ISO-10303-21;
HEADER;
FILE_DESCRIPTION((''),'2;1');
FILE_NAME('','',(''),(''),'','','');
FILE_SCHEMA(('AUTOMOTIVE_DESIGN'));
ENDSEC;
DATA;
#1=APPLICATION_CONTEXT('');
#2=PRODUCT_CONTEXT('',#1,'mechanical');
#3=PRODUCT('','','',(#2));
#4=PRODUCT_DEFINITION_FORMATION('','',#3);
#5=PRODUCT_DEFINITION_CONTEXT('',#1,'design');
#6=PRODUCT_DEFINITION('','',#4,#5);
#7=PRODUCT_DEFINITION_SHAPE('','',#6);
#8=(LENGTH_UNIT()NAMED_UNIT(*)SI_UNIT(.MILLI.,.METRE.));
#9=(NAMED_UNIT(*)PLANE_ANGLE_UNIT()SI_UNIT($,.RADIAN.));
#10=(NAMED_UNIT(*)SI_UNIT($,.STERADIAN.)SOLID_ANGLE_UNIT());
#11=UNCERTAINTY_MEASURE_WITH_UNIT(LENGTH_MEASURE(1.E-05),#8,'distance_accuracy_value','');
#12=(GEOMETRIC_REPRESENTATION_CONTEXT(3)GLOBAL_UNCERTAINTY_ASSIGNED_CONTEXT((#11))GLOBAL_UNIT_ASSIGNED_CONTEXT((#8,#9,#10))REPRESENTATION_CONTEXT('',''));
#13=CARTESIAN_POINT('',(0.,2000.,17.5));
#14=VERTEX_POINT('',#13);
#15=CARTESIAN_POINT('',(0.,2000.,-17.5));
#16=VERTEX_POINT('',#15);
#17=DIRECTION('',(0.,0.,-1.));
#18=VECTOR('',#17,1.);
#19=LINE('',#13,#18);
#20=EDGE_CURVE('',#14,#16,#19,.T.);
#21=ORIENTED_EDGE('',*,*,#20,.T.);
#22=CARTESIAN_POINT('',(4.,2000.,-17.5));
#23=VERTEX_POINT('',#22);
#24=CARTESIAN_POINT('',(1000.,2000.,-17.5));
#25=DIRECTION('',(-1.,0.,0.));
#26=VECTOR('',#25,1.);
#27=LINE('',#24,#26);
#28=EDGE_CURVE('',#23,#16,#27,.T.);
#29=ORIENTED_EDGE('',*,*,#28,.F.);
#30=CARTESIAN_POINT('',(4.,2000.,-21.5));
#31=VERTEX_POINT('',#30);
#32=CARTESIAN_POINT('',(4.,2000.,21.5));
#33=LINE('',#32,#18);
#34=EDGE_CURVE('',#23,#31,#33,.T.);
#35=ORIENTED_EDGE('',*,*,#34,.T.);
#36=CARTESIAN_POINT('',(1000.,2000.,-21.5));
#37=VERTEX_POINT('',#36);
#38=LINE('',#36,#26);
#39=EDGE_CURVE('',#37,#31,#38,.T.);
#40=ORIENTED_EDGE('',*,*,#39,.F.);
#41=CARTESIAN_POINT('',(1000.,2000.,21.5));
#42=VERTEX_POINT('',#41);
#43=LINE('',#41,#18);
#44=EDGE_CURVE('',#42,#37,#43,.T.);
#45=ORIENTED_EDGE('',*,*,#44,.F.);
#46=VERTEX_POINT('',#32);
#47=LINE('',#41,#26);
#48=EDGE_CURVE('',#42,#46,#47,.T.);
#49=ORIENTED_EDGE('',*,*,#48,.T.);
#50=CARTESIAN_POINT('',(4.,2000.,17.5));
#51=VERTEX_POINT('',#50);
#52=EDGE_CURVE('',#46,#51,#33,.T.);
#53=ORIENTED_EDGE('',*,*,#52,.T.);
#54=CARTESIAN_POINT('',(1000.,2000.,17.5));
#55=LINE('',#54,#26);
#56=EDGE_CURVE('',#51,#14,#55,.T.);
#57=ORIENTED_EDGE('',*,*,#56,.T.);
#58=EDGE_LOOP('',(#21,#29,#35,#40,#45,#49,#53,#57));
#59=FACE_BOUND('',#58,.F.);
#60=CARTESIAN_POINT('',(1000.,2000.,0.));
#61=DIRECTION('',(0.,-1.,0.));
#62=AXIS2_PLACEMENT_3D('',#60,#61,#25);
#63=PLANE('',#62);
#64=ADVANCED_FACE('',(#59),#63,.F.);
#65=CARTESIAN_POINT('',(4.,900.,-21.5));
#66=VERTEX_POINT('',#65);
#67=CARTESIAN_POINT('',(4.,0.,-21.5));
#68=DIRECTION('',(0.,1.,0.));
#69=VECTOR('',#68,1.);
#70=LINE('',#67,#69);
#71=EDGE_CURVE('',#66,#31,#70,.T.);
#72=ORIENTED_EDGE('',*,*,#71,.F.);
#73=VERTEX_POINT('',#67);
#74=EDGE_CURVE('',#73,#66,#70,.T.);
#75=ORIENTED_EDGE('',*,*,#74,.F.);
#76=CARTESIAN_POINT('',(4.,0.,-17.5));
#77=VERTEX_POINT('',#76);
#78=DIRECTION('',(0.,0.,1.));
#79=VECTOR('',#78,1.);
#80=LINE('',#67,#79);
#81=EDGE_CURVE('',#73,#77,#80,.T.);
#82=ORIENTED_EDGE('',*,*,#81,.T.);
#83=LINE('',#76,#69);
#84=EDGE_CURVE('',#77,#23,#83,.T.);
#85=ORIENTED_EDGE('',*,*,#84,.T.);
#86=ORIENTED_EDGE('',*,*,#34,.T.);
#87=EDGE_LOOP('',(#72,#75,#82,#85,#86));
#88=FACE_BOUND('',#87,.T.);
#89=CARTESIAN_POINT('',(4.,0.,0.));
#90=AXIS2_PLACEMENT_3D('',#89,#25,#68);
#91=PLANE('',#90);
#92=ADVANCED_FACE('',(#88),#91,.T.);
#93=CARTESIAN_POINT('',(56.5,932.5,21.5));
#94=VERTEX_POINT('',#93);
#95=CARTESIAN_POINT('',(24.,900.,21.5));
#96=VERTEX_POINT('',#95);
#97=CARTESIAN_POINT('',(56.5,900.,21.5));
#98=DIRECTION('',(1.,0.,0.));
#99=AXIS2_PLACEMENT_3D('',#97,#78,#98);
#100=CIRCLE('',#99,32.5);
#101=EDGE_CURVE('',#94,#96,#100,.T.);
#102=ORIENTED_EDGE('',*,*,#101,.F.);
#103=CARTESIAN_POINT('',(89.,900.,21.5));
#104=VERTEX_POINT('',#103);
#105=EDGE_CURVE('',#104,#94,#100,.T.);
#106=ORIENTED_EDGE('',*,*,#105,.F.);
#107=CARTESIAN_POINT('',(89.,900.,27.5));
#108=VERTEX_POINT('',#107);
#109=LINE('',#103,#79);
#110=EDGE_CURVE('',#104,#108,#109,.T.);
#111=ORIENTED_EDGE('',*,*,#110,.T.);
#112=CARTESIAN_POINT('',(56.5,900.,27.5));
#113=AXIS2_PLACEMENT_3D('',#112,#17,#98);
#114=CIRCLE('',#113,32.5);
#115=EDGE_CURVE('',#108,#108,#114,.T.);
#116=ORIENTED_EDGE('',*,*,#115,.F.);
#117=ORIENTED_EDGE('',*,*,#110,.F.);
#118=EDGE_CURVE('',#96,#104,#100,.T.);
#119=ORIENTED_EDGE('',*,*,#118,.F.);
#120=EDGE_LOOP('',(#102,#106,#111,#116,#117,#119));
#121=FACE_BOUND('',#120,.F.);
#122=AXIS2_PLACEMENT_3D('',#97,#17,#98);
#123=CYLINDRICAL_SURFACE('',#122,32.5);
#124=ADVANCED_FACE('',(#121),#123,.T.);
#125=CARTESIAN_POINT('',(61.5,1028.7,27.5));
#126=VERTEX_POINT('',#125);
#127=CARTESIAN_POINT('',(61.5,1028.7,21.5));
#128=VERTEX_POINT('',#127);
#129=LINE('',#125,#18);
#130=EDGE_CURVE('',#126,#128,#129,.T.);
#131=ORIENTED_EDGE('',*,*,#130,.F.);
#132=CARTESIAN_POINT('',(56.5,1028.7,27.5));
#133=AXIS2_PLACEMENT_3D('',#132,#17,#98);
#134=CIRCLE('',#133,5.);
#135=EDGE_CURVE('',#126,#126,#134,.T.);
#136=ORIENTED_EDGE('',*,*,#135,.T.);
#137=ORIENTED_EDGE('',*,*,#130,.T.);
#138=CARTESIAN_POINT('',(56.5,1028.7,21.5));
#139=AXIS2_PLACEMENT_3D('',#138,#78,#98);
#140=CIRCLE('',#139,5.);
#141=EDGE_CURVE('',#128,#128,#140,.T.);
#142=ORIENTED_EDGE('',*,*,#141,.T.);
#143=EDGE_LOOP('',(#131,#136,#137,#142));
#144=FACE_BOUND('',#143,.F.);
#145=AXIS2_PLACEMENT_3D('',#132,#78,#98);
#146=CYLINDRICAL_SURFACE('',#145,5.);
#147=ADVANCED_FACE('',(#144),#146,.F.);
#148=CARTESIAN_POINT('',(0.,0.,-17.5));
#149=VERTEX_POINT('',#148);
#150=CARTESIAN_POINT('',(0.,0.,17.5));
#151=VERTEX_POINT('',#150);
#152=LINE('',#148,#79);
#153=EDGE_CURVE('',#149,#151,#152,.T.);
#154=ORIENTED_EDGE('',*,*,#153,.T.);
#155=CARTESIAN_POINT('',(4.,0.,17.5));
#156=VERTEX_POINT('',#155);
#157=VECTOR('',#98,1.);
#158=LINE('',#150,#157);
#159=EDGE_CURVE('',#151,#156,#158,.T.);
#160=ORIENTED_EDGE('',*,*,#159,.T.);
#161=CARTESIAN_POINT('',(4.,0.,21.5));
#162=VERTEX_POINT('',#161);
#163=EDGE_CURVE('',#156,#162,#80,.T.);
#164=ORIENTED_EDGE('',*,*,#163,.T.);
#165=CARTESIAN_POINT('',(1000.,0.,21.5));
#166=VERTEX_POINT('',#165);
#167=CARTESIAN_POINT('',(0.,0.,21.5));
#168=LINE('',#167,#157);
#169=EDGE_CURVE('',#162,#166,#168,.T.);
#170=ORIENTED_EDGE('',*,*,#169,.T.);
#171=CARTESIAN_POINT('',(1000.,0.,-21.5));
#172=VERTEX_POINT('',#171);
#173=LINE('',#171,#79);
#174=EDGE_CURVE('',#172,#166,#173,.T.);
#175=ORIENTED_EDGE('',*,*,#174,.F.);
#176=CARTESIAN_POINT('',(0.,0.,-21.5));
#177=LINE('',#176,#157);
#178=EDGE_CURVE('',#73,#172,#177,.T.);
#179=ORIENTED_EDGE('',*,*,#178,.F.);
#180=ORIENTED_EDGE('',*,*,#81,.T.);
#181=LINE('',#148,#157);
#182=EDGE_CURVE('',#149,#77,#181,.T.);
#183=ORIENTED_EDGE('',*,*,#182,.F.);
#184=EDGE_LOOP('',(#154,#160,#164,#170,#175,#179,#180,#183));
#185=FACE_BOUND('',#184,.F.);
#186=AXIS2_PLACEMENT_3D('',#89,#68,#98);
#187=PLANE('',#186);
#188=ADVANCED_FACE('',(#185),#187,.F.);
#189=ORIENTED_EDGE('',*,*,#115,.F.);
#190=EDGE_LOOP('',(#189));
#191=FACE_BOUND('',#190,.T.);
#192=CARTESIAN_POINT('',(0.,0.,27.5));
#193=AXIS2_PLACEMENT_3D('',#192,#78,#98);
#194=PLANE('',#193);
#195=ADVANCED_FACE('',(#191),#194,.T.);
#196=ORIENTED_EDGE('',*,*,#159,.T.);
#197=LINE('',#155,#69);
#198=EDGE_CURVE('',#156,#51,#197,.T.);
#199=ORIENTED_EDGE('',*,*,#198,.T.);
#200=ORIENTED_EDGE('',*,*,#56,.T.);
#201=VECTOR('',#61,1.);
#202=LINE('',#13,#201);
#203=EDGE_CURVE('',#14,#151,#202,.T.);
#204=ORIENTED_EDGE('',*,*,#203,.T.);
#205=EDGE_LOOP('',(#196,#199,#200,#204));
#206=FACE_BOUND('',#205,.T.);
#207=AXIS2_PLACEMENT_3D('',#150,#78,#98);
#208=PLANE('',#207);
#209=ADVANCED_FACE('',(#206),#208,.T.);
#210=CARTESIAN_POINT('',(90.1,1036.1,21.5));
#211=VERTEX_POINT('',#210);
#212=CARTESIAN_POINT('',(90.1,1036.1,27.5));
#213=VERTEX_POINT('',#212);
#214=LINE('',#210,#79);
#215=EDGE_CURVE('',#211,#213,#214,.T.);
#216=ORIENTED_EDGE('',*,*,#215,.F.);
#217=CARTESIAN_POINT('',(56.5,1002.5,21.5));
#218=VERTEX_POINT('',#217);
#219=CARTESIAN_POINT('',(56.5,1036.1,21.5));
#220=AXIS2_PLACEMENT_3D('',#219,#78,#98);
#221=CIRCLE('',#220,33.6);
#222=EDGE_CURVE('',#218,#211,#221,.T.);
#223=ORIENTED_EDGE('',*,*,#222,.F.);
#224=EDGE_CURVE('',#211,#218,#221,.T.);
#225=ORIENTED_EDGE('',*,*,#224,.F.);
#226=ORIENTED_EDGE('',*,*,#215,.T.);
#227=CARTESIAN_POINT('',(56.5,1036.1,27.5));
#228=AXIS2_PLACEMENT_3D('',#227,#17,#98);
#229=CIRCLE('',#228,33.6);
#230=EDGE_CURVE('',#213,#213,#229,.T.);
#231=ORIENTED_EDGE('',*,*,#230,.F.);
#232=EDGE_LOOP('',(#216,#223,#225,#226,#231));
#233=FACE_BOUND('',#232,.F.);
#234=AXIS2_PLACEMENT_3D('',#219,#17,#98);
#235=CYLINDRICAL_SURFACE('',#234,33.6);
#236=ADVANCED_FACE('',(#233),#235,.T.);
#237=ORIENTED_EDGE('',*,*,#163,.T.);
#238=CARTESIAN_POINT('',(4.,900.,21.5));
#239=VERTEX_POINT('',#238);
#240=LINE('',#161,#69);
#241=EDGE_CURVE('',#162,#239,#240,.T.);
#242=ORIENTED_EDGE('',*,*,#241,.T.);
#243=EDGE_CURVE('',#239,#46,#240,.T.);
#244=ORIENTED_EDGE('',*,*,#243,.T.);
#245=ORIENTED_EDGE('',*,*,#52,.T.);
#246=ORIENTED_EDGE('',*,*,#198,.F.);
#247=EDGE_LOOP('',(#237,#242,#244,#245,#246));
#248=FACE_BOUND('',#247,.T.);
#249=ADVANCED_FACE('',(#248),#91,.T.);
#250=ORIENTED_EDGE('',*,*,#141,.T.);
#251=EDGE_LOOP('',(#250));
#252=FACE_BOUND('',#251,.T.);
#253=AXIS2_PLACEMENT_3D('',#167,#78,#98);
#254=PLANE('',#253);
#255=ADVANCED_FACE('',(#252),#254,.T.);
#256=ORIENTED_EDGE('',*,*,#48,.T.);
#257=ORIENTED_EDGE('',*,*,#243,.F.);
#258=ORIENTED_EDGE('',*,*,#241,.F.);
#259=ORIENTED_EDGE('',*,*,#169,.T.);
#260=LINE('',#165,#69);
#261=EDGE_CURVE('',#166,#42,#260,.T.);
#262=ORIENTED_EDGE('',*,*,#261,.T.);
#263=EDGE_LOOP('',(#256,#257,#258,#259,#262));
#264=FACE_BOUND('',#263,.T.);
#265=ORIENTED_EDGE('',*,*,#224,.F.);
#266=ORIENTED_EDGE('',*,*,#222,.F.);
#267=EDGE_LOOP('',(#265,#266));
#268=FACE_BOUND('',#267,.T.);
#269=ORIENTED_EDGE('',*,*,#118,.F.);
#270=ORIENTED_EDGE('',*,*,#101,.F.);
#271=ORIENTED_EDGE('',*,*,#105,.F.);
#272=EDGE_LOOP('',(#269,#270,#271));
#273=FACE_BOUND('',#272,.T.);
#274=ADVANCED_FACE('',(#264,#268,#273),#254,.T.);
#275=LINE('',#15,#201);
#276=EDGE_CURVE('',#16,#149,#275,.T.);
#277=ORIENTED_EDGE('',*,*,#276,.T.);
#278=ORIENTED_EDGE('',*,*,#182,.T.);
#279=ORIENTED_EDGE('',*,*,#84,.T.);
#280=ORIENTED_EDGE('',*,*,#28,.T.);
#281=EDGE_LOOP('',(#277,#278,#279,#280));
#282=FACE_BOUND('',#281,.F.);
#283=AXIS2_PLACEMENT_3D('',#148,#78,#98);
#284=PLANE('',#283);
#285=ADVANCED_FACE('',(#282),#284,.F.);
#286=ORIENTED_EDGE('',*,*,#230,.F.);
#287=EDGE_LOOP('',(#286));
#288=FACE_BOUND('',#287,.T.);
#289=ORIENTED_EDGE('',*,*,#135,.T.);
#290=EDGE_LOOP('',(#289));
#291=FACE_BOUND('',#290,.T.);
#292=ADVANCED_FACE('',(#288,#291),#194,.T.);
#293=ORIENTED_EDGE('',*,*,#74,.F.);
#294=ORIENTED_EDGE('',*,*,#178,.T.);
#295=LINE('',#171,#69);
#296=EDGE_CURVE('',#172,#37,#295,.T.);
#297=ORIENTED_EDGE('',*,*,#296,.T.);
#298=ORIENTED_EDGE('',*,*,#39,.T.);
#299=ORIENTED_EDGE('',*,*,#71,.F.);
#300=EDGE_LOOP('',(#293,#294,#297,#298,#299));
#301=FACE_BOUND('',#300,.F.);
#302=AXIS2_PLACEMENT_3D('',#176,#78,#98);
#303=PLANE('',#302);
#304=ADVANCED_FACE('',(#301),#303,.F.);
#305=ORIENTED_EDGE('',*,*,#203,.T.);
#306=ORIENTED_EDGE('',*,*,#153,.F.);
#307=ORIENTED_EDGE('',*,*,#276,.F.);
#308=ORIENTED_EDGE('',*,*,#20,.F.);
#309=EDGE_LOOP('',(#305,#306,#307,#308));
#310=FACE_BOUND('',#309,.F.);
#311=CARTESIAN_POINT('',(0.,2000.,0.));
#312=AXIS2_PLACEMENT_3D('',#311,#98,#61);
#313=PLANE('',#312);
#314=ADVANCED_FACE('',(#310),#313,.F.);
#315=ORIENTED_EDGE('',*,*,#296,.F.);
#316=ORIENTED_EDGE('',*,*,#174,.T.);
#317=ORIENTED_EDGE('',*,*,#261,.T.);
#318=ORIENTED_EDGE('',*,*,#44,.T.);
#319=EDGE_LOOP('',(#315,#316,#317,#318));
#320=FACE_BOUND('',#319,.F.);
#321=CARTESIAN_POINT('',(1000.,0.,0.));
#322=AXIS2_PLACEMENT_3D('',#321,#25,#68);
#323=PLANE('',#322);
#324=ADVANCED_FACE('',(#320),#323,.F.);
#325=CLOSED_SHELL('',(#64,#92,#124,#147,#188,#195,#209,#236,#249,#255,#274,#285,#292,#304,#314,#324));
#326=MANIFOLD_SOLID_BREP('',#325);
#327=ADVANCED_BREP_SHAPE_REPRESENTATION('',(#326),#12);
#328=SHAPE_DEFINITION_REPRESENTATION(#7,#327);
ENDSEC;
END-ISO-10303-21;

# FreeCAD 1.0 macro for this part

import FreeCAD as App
import Part
import Sketcher

doc = App.newDocument("Part")
params = doc.addObject("Spreadsheet::Sheet", "Params")
for row, (alias, value) in enumerate([
    ("sketch1_height", "900 mm"),
    ("sketch1_height2", "2000 mm"),
    ("pad1_length", "43 mm"),
    ("sketch2_width", "4 mm"),
    ("sketch2_height", "2000 mm"),
    ("pad2_length", "35 mm"),
    ("sketch3_diameter", "65 mm"),
    ("sketch3_diameter2", "67.2 mm"),
    ("pad3_length", "6 mm"),
    ("sketch4_diameter", "10 mm"),
    ("pocket1_length", "6 mm"),
], start=1):
    params.set(f"A{row}", alias)
    params.set(f"B{row}", "=" + value)
    params.setAlias(f"B{row}", alias)

body = doc.addObject("PartDesign::Body", "Body")

# Sketch on XY plane
sketch1 = body.newObject("Sketcher::SketchObject", "Sketch")
sketch1.AttachmentSupport = (doc.getObject("XY_Plane"), [""])
sketch1.MapMode = "FlatFace"
sketch1.addGeometry([
    Part.LineSegment(App.Vector(4, 900, 0), App.Vector(4, 0, 0)),  # 0
    Part.LineSegment(App.Vector(4, 0, 0), App.Vector(1000, 0, 0)),  # 1
    Part.LineSegment(App.Vector(1000, 0, 0), App.Vector(1000, 2000, 0)),  # 2
    Part.LineSegment(App.Vector(1000, 2000, 0), App.Vector(4, 2000, 0)),  # 3
    Part.LineSegment(App.Vector(4, 2000, 0), App.Vector(4, 900, 0)),  # 4
], False)
sketch1.addConstraint([
    Sketcher.Constraint("Coincident", 0, 2, 1, 1),
    Sketcher.Constraint("Coincident", 1, 2, 2, 1),
    Sketcher.Constraint("Coincident", 2, 2, 3, 1),
    Sketcher.Constraint("Coincident", 3, 2, 4, 1),
    Sketcher.Constraint("Coincident", 4, 2, 0, 1),
    Sketcher.Constraint("Vertical", 0),
    Sketcher.Constraint("Horizontal", 1),
    Sketcher.Constraint("Vertical", 2),
    Sketcher.Constraint("Horizontal", 3),
    Sketcher.Constraint("Vertical", 4),
    Sketcher.Constraint("PointOnObject", 0, 2, -1),
    Sketcher.Constraint("DistanceY", 0, 2, 0, 1, 900.0),
    Sketcher.Constraint("DistanceY", 2, 1, 2, 2, 2000.0),
    Sketcher.Constraint("DistanceX", -1, 1, 0, 2, 4.0),
    Sketcher.Constraint("DistanceX", -1, 1, 1, 2, 1000.0),
])
sketch1.setExpression("Constraints[11]", "Params.sketch1_height")
sketch1.setExpression("Constraints[12]", "Params.sketch1_height2")
pad1 = body.newObject("PartDesign::Pad", "Pad")
pad1.Profile = sketch1
pad1.setExpression("Length", "Params.pad1_length")
pad1.Midplane = True

# Sketch on XY plane
sketch2 = body.newObject("Sketcher::SketchObject", "Sketch001")
sketch2.AttachmentSupport = (doc.getObject("XY_Plane"), [""])
sketch2.MapMode = "FlatFace"
sketch2.addGeometry([
    Part.LineSegment(App.Vector(0, 2000, 0), App.Vector(0, 0, 0)),
    Part.LineSegment(App.Vector(0, 0, 0), App.Vector(4, 0, 0)),
    Part.LineSegment(App.Vector(4, 0, 0), App.Vector(4, 2000, 0)),
    Part.LineSegment(App.Vector(4, 2000, 0), App.Vector(0, 2000, 0)),
], False)
sketch2.addConstraint([
    Sketcher.Constraint("Coincident", 0, 2, 1, 1),
    Sketcher.Constraint("Coincident", 1, 2, 2, 1),
    Sketcher.Constraint("Coincident", 2, 2, 3, 1),
    Sketcher.Constraint("Coincident", 3, 2, 0, 1),
    Sketcher.Constraint("Vertical", 0),
    Sketcher.Constraint("Horizontal", 1),
    Sketcher.Constraint("Vertical", 2),
    Sketcher.Constraint("Horizontal", 3),
    Sketcher.Constraint("Coincident", 0, 2, -1, 1),
    Sketcher.Constraint("DistanceX", 1, 1, 1, 2, 4.0),
    Sketcher.Constraint("DistanceY", 0, 2, 0, 1, 2000.0),
])
sketch2.setExpression("Constraints[9]", "Params.sketch2_width")
sketch2.setExpression("Constraints[10]", "Params.sketch2_height")
pad2 = body.newObject("PartDesign::Pad", "Pad001")
pad2.Profile = sketch2
pad2.setExpression("Length", "Params.pad2_length")
pad2.Midplane = True

# Sketch on XY plane
sketch3 = body.newObject("Sketcher::SketchObject", "Sketch002")
sketch3.AttachmentSupport = (doc.getObject("XY_Plane"), [""])
sketch3.MapMode = "FlatFace"
sketch3.AttachmentOffset = App.Placement(App.Vector(0, 0, 21.5), App.Rotation())
sketch3.addGeometry([
    Part.Circle(App.Vector(56.5, 1036.1, 0), App.Vector(0, 0, 1), 33.6),
    Part.Circle(App.Vector(56.5, 900, 0), App.Vector(0, 0, 1), 32.5),
], False)
sketch3.addConstraint([
    Sketcher.Constraint("Vertical", 0, 3, 1, 3),
    Sketcher.Constraint("Diameter", 1, 65.0),
    Sketcher.Constraint("Diameter", 0, 67.2),
    Sketcher.Constraint("DistanceY", -1, 1, 1, 3, 900.0),
    Sketcher.Constraint("DistanceX", -1, 1, 0, 3, 56.5),
    Sketcher.Constraint("DistanceY", -1, 1, 0, 3, 1036.1),
])
sketch3.setExpression("Constraints[1]", "Params.sketch3_diameter")
sketch3.setExpression("Constraints[2]", "Params.sketch3_diameter2")
pad3 = body.newObject("PartDesign::Pad", "Pad002")
pad3.Profile = sketch3
pad3.setExpression("Length", "Params.pad3_length")

# Sketch on XY plane
sketch4 = body.newObject("Sketcher::SketchObject", "Sketch003")
sketch4.AttachmentSupport = (doc.getObject("XY_Plane"), [""])
sketch4.MapMode = "FlatFace"
sketch4.AttachmentOffset = App.Placement(App.Vector(0, 0, 27.5), App.Rotation())
sketch4.addGeometry(Part.Circle(App.Vector(56.5, 1028.7, 0), App.Vector(0, 0, 1), 5), False)
sketch4.addConstraint([
    Sketcher.Constraint("Diameter", 0, 10.0),
    Sketcher.Constraint("DistanceX", -1, 1, 0, 3, 56.5),
    Sketcher.Constraint("DistanceY", -1, 1, 0, 3, 1028.7),
])
sketch4.setExpression("Constraints[0]", "Params.sketch4_diameter")
pocket1 = body.newObject("PartDesign::Pocket", "Pocket")
pocket1.Profile = sketch4
pocket1.setExpression("Length", "Params.pocket1_length")

doc.recompute()
